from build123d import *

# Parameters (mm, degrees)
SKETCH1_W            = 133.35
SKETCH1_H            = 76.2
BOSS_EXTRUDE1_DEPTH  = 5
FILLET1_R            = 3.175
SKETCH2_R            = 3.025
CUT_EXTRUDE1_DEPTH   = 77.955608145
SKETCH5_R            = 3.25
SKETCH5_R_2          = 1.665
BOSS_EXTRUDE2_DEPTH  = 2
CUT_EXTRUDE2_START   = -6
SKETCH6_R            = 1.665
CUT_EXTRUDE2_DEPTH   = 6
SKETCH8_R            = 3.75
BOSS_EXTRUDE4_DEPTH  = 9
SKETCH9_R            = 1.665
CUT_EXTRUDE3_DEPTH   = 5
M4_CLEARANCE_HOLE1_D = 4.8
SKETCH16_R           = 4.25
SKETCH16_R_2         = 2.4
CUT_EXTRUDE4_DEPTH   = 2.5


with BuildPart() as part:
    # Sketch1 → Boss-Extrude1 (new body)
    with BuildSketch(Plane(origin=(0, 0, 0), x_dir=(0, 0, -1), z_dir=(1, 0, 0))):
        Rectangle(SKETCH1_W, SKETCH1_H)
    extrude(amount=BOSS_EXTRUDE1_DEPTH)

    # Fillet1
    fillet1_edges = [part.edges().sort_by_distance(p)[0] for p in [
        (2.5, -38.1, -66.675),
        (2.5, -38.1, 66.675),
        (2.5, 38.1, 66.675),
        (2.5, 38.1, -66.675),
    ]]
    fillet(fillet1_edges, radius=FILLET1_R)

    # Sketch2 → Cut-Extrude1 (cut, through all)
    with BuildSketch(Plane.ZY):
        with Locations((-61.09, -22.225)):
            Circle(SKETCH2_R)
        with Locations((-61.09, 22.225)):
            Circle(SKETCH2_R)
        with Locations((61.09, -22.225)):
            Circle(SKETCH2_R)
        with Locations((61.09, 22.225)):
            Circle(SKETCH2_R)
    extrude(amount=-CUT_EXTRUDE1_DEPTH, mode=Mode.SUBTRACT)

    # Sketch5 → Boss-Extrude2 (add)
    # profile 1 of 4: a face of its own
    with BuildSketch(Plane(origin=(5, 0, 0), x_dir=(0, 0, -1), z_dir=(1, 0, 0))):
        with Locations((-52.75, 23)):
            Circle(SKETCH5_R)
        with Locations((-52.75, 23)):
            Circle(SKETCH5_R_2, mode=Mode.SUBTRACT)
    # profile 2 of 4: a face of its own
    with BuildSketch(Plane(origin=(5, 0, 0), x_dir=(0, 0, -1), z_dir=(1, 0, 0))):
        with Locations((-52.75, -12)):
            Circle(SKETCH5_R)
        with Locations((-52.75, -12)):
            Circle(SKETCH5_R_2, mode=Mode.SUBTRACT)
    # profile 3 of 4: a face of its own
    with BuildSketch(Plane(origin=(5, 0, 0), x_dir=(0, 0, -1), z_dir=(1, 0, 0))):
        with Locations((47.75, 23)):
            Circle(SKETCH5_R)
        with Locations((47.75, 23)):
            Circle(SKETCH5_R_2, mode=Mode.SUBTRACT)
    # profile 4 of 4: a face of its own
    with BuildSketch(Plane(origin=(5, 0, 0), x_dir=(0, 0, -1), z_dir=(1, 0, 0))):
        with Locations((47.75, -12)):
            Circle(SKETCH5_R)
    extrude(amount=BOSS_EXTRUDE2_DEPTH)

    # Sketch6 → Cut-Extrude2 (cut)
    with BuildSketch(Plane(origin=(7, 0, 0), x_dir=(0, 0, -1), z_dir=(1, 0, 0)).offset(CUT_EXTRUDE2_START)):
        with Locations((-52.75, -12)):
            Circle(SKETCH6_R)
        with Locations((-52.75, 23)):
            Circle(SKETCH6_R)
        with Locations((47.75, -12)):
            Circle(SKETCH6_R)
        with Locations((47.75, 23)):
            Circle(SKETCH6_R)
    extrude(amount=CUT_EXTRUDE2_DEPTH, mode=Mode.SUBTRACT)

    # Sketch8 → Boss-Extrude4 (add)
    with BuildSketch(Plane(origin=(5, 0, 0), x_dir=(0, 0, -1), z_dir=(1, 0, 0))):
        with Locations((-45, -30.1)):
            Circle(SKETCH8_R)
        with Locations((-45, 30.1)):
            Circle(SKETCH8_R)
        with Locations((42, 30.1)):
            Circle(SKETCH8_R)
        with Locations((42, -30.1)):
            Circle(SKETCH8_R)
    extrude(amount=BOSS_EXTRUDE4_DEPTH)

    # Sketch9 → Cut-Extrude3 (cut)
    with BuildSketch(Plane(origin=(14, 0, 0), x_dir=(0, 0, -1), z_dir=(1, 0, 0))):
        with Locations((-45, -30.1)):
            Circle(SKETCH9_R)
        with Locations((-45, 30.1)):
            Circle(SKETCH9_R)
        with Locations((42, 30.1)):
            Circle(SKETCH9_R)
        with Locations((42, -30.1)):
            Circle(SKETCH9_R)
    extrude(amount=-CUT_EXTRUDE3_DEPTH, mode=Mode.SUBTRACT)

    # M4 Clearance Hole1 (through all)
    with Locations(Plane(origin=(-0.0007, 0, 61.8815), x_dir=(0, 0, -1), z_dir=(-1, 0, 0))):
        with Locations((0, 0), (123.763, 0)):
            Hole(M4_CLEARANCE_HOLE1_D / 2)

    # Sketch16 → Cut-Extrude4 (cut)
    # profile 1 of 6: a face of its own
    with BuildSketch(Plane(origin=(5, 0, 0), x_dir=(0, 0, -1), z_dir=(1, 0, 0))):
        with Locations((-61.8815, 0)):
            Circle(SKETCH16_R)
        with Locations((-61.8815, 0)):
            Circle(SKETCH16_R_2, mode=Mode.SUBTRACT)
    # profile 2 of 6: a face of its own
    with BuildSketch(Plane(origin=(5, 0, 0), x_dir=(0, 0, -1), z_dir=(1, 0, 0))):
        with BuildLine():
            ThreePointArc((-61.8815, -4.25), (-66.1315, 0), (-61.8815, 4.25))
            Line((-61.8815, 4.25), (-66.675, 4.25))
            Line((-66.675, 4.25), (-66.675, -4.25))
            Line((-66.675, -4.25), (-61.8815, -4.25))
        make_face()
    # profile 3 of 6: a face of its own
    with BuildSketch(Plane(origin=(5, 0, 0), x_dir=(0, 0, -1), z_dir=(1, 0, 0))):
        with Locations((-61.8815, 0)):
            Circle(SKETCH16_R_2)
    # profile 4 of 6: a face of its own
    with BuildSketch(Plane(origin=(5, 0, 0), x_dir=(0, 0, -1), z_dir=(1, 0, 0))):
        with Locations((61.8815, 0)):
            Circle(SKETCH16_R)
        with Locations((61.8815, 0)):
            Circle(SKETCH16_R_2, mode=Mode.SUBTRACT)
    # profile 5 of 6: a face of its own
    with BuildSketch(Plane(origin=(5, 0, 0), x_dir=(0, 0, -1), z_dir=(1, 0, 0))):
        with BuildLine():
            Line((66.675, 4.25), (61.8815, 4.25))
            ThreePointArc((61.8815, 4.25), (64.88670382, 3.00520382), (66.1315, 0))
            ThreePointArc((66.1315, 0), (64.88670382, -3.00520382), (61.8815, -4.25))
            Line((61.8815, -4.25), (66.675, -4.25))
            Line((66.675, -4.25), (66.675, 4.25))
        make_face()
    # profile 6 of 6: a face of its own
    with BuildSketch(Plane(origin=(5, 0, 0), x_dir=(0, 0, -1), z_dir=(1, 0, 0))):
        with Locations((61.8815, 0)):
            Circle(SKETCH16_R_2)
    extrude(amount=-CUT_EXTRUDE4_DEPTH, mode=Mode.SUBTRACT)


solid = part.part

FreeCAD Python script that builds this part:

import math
import FreeCAD as App
import Part
import Sketcher
from FreeCAD import Vector
Q = App.Units.Quantity


def edges_at(feature, points):
    """Names of the edges that pass closest to the given points."""
    edges = feature.Shape.Edges
    near = lambda p: min(range(len(edges)), key=lambda i: edges[i].distToShape(Part.Vertex(*p))[0])
    return sorted({f"Edge{near(p) + 1}" for p in points})

doc = App.newDocument("Part")
body = doc.addObject("PartDesign::Body", "Body")

# Sketch on YZ plane
sketch1 = doc.addObject("Sketcher::SketchObject", "Sketch")
body.addObject(sketch1)
sketch1.AttachmentSupport = (doc.YZ_Plane, [""])
sketch1.MapMode = "FlatFace"
sketch1.addGeometry([
    Part.LineSegment(Vector(38.1, 66.675, 0), Vector(-38.1, 66.675, 0)),
    Part.LineSegment(Vector(-38.1, 66.675, 0), Vector(-38.1, -66.675, 0)),
    Part.LineSegment(Vector(-38.1, -66.675, 0), Vector(38.1, -66.675, 0)),
    Part.LineSegment(Vector(38.1, -66.675, 0), Vector(38.1, 66.675, 0)),
], False)
sketch1.addConstraint([
    Sketcher.Constraint("Coincident", 0, 2, 1, 1),
    Sketcher.Constraint("Coincident", 1, 2, 2, 1),
    Sketcher.Constraint("Coincident", 2, 2, 3, 1),
    Sketcher.Constraint("Coincident", 3, 2, 0, 1),
    Sketcher.Constraint("Horizontal", 0),
    Sketcher.Constraint("Vertical", 1),
    Sketcher.Constraint("Horizontal", 2),
    Sketcher.Constraint("Vertical", 3),
    Sketcher.Constraint("Symmetric", 0, 2, 2, 2, -1, 1),
    Sketcher.Constraint("DistanceX", 0, 2, 0, 1, Q("76.2 mm")),
    Sketcher.Constraint("DistanceY", 1, 2, 1, 1, Q("133.35 mm")),
])
pad1 = doc.addObject("PartDesign::Pad", "Pad")
body.addObject(pad1)
pad1.Profile = sketch1
pad1.Length = 5
doc.recompute()

fillet = doc.addObject("PartDesign::Fillet", "Fillet")
body.addObject(fillet)
fillet.Base = (pad1, edges_at(pad1, [
    (2.5, -38.1, -66.675),
    (2.5, -38.1, 66.675),
    (2.5, 38.1, 66.675),
    (2.5, 38.1, -66.675),
]))
fillet.Radius = 3.175

# Sketch on YZ plane
sketch2 = doc.addObject("Sketcher::SketchObject", "Sketch001")
body.addObject(sketch2)
sketch2.AttachmentSupport = (doc.YZ_Plane, [""])
sketch2.MapMode = "FlatFace"
sketch2.addGeometry([
    Part.Circle(Vector(-22.225, -61.09, 0), Vector(0, 0, 1), 3.025),
    Part.Circle(Vector(22.225, -61.09, 0), Vector(0, 0, 1), 3.025),
    Part.Circle(Vector(-22.225, 61.09, 0), Vector(0, 0, 1), 3.025),
    Part.Circle(Vector(22.225, 61.09, 0), Vector(0, 0, 1), 3.025),
], False)
sketch2.addConstraint([
    Sketcher.Constraint("Equal", 0, 1),
    Sketcher.Constraint("Equal", 1, 2),
    Sketcher.Constraint("Equal", 2, 3),
    Sketcher.Constraint("Symmetric", 1, 3, 2, 3, -1, 1),
    Sketcher.Constraint("Symmetric", 0, 3, 3, 3, -1, 1),
    Sketcher.Constraint("Symmetric", 0, 3, 1, 3, -2),
    Sketcher.Constraint("Diameter", 0, Q("6.05 mm")),
    Sketcher.Constraint("DistanceY", 0, 3, -1, 1, Q("61.09 mm")),
    Sketcher.Constraint("DistanceX", 0, 3, 1, 3, Q("44.45 mm")),
])
pocket1 = doc.addObject("PartDesign::Pocket", "Pocket")
body.addObject(pocket1)
pocket1.Profile = sketch2
pocket1.Type = "ThroughAll"
pocket1.Reversed = True

# Sketch on YZ plane
sketch3 = doc.addObject("Sketcher::SketchObject", "Sketch002")
body.addObject(sketch3)
sketch3.AttachmentSupport = (doc.YZ_Plane, [""])
sketch3.MapMode = "FlatFace"
sketch3.AttachmentOffset = App.Placement(Vector(0, 0, 5), App.Rotation())
sketch3.addGeometry([
    Part.Circle(Vector(23, 52.75, 0), Vector(0, 0, 1), 3.25),  # 0
    Part.Circle(Vector(23, 52.75, 0), Vector(0, 0, 1), 1.665),  # 1
    Part.Circle(Vector(-12, 52.75, 0), Vector(0, 0, 1), 3.25),  # 2
    Part.Circle(Vector(-12, 52.75, 0), Vector(0, 0, 1), 1.665),  # 3
    Part.Circle(Vector(23, -47.75, 0), Vector(0, 0, 1), 3.25),  # 4
    Part.Circle(Vector(23, -47.75, 0), Vector(0, 0, 1), 1.665),  # 5
    Part.Circle(Vector(-12, -47.75, 0), Vector(0, 0, 1), 3.25),  # 6
], False)
sketch3.addConstraint([
    Sketcher.Constraint("Coincident", 1, 3, 0, 3),
    Sketcher.Constraint("Coincident", 3, 3, 2, 3),
    Sketcher.Constraint("Coincident", 5, 3, 4, 3),
    Sketcher.Constraint("Equal", 0, 2),
    Sketcher.Constraint("Equal", 1, 3),
    Sketcher.Constraint("Equal", 2, 4),
    Sketcher.Constraint("Equal", 3, 5),
    Sketcher.Constraint("Equal", 4, 6),
    Sketcher.Constraint("Horizontal", 1, 3, 2, 3),
    Sketcher.Constraint("Horizontal", 5, 3, 6, 3),
    Sketcher.Constraint("Vertical", 1, 3, 4, 3),
    Sketcher.Constraint("Vertical", 3, 3, 6, 3),
    Sketcher.Constraint("Diameter", 0, Q("6.5 mm")),
    Sketcher.Constraint("Diameter", 1, Q("3.33 mm")),
    Sketcher.Constraint("DistanceX", -1, 1, 0, 3, Q("23 mm")),
    Sketcher.Constraint("DistanceX", 2, 3, -1, 1, Q("12 mm")),
    Sketcher.Constraint("DistanceY", 4, 3, 0, 3, Q("100.5 mm")),
    Sketcher.Constraint("DistanceY", -1, 1, 0, 3, Q("52.75 mm")),
])
pad2 = doc.addObject("PartDesign::Pad", "Pad001")
body.addObject(pad2)
pad2.Profile = sketch3
pad2.Length = 2

# Sketch on YZ plane
sketch4 = doc.addObject("Sketcher::SketchObject", "Sketch003")
body.addObject(sketch4)
sketch4.AttachmentSupport = (doc.YZ_Plane, [""])
sketch4.MapMode = "FlatFace"
sketch4.AttachmentOffset = App.Placement(Vector(0, 0, 1), App.Rotation())
sketch4.addGeometry([
    Part.Circle(Vector(-12, 52.75, 0), Vector(0, 0, 1), 1.665),
    Part.Circle(Vector(23, 52.75, 0), Vector(0, 0, 1), 1.665),
    Part.Circle(Vector(-12, -47.75, 0), Vector(0, 0, 1), 1.665),
    Part.Circle(Vector(23, -47.75, 0), Vector(0, 0, 1), 1.665),
], False)
sketch4.addConstraint([
    Sketcher.Constraint("Equal", 0, 1),
    Sketcher.Constraint("Equal", 1, 2),
    Sketcher.Constraint("Equal", 2, 3),
    Sketcher.Constraint("Horizontal", 0, 3, 1, 3),
    Sketcher.Constraint("Horizontal", 2, 3, 3, 3),
    Sketcher.Constraint("Vertical", 0, 3, 2, 3),
    Sketcher.Constraint("Vertical", 1, 3, 3, 3),
    Sketcher.Constraint("Diameter", 0, Q("3.33 mm")),
    Sketcher.Constraint("DistanceX", 0, 3, -1, 1, Q("12 mm")),
    Sketcher.Constraint("DistanceX", -1, 1, 1, 3, Q("23 mm")),
    Sketcher.Constraint("DistanceY", 2, 3, 0, 3, Q("100.5 mm")),
    Sketcher.Constraint("DistanceY", -1, 1, 0, 3, Q("52.75 mm")),
])
pocket2 = doc.addObject("PartDesign::Pocket", "Pocket001")
body.addObject(pocket2)
pocket2.Profile = sketch4
pocket2.Length = 6
pocket2.Reversed = True

# Sketch on YZ plane
sketch5 = doc.addObject("Sketcher::SketchObject", "Sketch004")
body.addObject(sketch5)
sketch5.AttachmentSupport = (doc.YZ_Plane, [""])
sketch5.MapMode = "FlatFace"
sketch5.AttachmentOffset = App.Placement(Vector(0, 0, 5), App.Rotation())
sketch5.addGeometry([
    Part.Circle(Vector(-30.1, 45, 0), Vector(0, 0, 1), 3.75),
    Part.Circle(Vector(30.1, 45, 0), Vector(0, 0, 1), 3.75),
    Part.Circle(Vector(30.1, -42, 0), Vector(0, 0, 1), 3.75),
    Part.Circle(Vector(-30.1, -42, 0), Vector(0, 0, 1), 3.75),
], False)
sketch5.addConstraint([
    Sketcher.Constraint("Equal", 0, 1),
    Sketcher.Constraint("Equal", 1, 2),
    Sketcher.Constraint("Equal", 2, 3),
    Sketcher.Constraint("Symmetric", 0, 3, 1, 3, -2),
    Sketcher.Constraint("Symmetric", 2, 3, 3, 3, -2),
    Sketcher.Constraint("Vertical", 1, 3, 2, 3),
    Sketcher.Constraint("Diameter", 0, Q("7.5 mm")),
    Sketcher.Constraint("DistanceY", -1, 1, 0, 3, Q("45 mm")),
    Sketcher.Constraint("DistanceY", 2, 3, -1, 1, Q("42 mm")),
    Sketcher.Constraint("DistanceX", 0, 3, -1, 1, Q("30.1 mm")),
])
pad3 = doc.addObject("PartDesign::Pad", "Pad002")
body.addObject(pad3)
pad3.Profile = sketch5
pad3.Length = 9

# Sketch on YZ plane
sketch6 = doc.addObject("Sketcher::SketchObject", "Sketch005")
body.addObject(sketch6)
sketch6.AttachmentSupport = (doc.YZ_Plane, [""])
sketch6.MapMode = "FlatFace"
sketch6.AttachmentOffset = App.Placement(Vector(0, 0, 14), App.Rotation())
sketch6.addGeometry([
    Part.Circle(Vector(-30.1, 45, 0), Vector(0, 0, 1), 1.665),
    Part.Circle(Vector(30.1, 45, 0), Vector(0, 0, 1), 1.665),
    Part.Circle(Vector(30.1, -42, 0), Vector(0, 0, 1), 1.665),
    Part.Circle(Vector(-30.1, -42, 0), Vector(0, 0, 1), 1.665),
], False)
sketch6.addConstraint([
    Sketcher.Constraint("Equal", 0, 1),
    Sketcher.Constraint("Equal", 1, 2),
    Sketcher.Constraint("Equal", 2, 3),
    Sketcher.Constraint("Symmetric", 0, 3, 1, 3, -2),
    Sketcher.Constraint("Symmetric", 2, 3, 3, 3, -2),
    Sketcher.Constraint("Vertical", 1, 3, 2, 3),
    Sketcher.Constraint("Diameter", 0, Q("3.33 mm")),
    Sketcher.Constraint("DistanceY", -1, 1, 0, 3, Q("45 mm")),
    Sketcher.Constraint("DistanceY", 2, 3, -1, 1, Q("42 mm")),
    Sketcher.Constraint("DistanceX", 0, 3, -1, 1, Q("30.1 mm")),
])
pocket3 = doc.addObject("PartDesign::Pocket", "Pocket002")
body.addObject(pocket3)
pocket3.Profile = sketch6
pocket3.Length = 5

# Sketch on YZ plane
sketch7 = doc.addObject("Sketcher::SketchObject", "Sketch006")
body.addObject(sketch7)
sketch7.AttachmentSupport = (doc.YZ_Plane, [""])
sketch7.MapMode = "FlatFace"
sketch7.AttachmentOffset = App.Placement(Vector(0, 0, -0.0007), App.Rotation())
sketch7.addGeometry([
    Part.Circle(Vector(0, 61.8815, 0), Vector(0, 0, 1), 2.4),
    Part.Circle(Vector(0, -61.8815, 0), Vector(0, 0, 1), 2.4),
], False)
sketch7.addConstraint([
    Sketcher.Constraint("Equal", 0, 1),
    Sketcher.Constraint("Symmetric", 0, 3, 1, 3, -1, 1),
    Sketcher.Constraint("PointOnObject", 0, 3, -2),
    Sketcher.Constraint("Diameter", 0, Q("4.8 mm")),
    Sketcher.Constraint("DistanceY", 1, 3, 0, 3, Q("123.763 mm")),
])
doc.recompute()
hole = doc.addObject("PartDesign::Hole", "Hole")
body.addObject(hole)
hole.Profile = sketch7
hole.ThreadType = "None"
hole.Diameter = 4.8
hole.DepthType = "ThroughAll"
hole.Reversed = True

# Sketch on YZ plane
sketch8 = doc.addObject("Sketcher::SketchObject", "Sketch007")
body.addObject(sketch8)
sketch8.AttachmentSupport = (doc.YZ_Plane, [""])
sketch8.MapMode = "FlatFace"
sketch8.AttachmentOffset = App.Placement(Vector(0, 0, 5), App.Rotation())
sketch8.addGeometry([
    Part.LineSegment(Vector(4.25, 61.8815, 0), Vector(4.25, 66.675, 0)),  # 0
    Part.LineSegment(Vector(4.25, 66.675, 0), Vector(-4.25, 66.675, 0)),  # 1
    Part.LineSegment(Vector(-4.25, 66.675, 0), Vector(-4.25, 61.8815, 0)),  # 2
    Part.ArcOfCircle(Part.Circle(Vector(0, 61.8815, 0), Vector(0, 0, 1), 4.25), math.radians(180), math.radians(360)),  # 3
    Part.ArcOfCircle(Part.Circle(Vector(0, -61.8815, 0), Vector(0, 0, 1), 4.25), math.radians(0), math.radians(180)),  # 4
    Part.LineSegment(Vector(-4.25, -61.8815, 0), Vector(-4.25, -66.675, 0)),  # 5
    Part.LineSegment(Vector(-4.25, -66.675, 0), Vector(4.25, -66.675, 0)),  # 6
    Part.LineSegment(Vector(4.25, -66.675, 0), Vector(4.25, -61.8815, 0)),  # 7
], False)
sketch8.addConstraint([
    Sketcher.Constraint("Coincident", 0, 2, 1, 1),
    Sketcher.Constraint("Coincident", 1, 2, 2, 1),
    Sketcher.Constraint("Tangent", 2, 2, 3, 1),
    Sketcher.Constraint("Tangent", 3, 2, 0, 1),
    Sketcher.Constraint("Tangent", 4, 2, 5, 1),
    Sketcher.Constraint("Coincident", 5, 2, 6, 1),
    Sketcher.Constraint("Coincident", 6, 2, 7, 1),
    Sketcher.Constraint("Tangent", 7, 2, 4, 1),
    Sketcher.Constraint("Vertical", 0),
    Sketcher.Constraint("Horizontal", 1),
    Sketcher.Constraint("Vertical", 2),
    Sketcher.Constraint("Vertical", 5),
    Sketcher.Constraint("Horizontal", 6),
    Sketcher.Constraint("Vertical", 7),
    Sketcher.Constraint("Equal", 3, 4),
    Sketcher.Constraint("Symmetric", 3, 3, 4, 3, -1, 1),
    Sketcher.Constraint("Symmetric", 1, 2, 5, 2, -1),
    Sketcher.Constraint("Radius", 3, Q("4.25 mm")),
    Sketcher.Constraint("DistanceY", 0, 1, 0, 2, Q("4.7935 mm")),
    Sketcher.Constraint("DistanceY", -1, 1, 0, 2, Q("66.675 mm")),
])
pocket4 = doc.addObject("PartDesign::Pocket", "Pocket003")
body.addObject(pocket4)
pocket4.Profile = sketch8
pocket4.Length = 2.5

doc.recompute()
